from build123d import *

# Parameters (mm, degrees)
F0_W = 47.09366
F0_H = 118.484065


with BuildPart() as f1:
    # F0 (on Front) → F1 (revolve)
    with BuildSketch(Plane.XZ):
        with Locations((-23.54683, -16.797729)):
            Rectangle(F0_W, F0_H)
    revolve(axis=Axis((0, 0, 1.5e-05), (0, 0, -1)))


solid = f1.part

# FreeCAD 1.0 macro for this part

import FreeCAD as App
import Part
import Sketcher
Q = App.Units.Quantity


def add_polygon(sketch, points):
    """Adds a closed chain of lines whose ends are joined by coincident constraints."""
    first, n = sketch.GeometryCount, len(points)
    for a, b in zip(points, points[1:] + points[:1]):
        sketch.addGeometry(Part.LineSegment(App.Vector(*a, 0), App.Vector(*b, 0)), False)
    for i in range(n):
        sketch.addConstraint(Sketcher.Constraint("Coincident", first + i, 2, first + (i + 1) % n, 1))

doc = App.newDocument("Part")
body = doc.addObject("PartDesign::Body", "Body")

# Sketch on XZ plane
sketch1 = body.newObject("Sketcher::SketchObject", "Sketch")
sketch1.AttachmentSupport = (doc.getObject("XZ_Plane"), [""])
sketch1.MapMode = "FlatFace"
add_polygon(sketch1, [(-47.09366, 42.444303), (-47.09366, -76.039761), (0, -76.039761), (0, 42.444303)])  # lines 0-3
sketch1.addConstraint([
    Sketcher.Constraint("Vertical", 0),
    Sketcher.Constraint("Horizontal", 1),
    Sketcher.Constraint("Vertical", 2),
    Sketcher.Constraint("Horizontal", 3),
    Sketcher.Constraint("PointOnObject", 1, 2, -2),
    Sketcher.Constraint("DistanceX", 1, 1, 1, 2, Q("47.09366 mm")),
    Sketcher.Constraint("DistanceY", 0, 2, 0, 1, Q("118.484065 mm")),
    Sketcher.Constraint("DistanceY", 0, 2, -1, 1, Q("76.039761 mm")),
])
revolution = body.newObject("PartDesign::Revolution", "Revolution")
revolution.Profile = sketch1
revolution.ReferenceAxis = (sketch1, ["V_Axis"])
revolution.Angle = 360

doc.recompute()
